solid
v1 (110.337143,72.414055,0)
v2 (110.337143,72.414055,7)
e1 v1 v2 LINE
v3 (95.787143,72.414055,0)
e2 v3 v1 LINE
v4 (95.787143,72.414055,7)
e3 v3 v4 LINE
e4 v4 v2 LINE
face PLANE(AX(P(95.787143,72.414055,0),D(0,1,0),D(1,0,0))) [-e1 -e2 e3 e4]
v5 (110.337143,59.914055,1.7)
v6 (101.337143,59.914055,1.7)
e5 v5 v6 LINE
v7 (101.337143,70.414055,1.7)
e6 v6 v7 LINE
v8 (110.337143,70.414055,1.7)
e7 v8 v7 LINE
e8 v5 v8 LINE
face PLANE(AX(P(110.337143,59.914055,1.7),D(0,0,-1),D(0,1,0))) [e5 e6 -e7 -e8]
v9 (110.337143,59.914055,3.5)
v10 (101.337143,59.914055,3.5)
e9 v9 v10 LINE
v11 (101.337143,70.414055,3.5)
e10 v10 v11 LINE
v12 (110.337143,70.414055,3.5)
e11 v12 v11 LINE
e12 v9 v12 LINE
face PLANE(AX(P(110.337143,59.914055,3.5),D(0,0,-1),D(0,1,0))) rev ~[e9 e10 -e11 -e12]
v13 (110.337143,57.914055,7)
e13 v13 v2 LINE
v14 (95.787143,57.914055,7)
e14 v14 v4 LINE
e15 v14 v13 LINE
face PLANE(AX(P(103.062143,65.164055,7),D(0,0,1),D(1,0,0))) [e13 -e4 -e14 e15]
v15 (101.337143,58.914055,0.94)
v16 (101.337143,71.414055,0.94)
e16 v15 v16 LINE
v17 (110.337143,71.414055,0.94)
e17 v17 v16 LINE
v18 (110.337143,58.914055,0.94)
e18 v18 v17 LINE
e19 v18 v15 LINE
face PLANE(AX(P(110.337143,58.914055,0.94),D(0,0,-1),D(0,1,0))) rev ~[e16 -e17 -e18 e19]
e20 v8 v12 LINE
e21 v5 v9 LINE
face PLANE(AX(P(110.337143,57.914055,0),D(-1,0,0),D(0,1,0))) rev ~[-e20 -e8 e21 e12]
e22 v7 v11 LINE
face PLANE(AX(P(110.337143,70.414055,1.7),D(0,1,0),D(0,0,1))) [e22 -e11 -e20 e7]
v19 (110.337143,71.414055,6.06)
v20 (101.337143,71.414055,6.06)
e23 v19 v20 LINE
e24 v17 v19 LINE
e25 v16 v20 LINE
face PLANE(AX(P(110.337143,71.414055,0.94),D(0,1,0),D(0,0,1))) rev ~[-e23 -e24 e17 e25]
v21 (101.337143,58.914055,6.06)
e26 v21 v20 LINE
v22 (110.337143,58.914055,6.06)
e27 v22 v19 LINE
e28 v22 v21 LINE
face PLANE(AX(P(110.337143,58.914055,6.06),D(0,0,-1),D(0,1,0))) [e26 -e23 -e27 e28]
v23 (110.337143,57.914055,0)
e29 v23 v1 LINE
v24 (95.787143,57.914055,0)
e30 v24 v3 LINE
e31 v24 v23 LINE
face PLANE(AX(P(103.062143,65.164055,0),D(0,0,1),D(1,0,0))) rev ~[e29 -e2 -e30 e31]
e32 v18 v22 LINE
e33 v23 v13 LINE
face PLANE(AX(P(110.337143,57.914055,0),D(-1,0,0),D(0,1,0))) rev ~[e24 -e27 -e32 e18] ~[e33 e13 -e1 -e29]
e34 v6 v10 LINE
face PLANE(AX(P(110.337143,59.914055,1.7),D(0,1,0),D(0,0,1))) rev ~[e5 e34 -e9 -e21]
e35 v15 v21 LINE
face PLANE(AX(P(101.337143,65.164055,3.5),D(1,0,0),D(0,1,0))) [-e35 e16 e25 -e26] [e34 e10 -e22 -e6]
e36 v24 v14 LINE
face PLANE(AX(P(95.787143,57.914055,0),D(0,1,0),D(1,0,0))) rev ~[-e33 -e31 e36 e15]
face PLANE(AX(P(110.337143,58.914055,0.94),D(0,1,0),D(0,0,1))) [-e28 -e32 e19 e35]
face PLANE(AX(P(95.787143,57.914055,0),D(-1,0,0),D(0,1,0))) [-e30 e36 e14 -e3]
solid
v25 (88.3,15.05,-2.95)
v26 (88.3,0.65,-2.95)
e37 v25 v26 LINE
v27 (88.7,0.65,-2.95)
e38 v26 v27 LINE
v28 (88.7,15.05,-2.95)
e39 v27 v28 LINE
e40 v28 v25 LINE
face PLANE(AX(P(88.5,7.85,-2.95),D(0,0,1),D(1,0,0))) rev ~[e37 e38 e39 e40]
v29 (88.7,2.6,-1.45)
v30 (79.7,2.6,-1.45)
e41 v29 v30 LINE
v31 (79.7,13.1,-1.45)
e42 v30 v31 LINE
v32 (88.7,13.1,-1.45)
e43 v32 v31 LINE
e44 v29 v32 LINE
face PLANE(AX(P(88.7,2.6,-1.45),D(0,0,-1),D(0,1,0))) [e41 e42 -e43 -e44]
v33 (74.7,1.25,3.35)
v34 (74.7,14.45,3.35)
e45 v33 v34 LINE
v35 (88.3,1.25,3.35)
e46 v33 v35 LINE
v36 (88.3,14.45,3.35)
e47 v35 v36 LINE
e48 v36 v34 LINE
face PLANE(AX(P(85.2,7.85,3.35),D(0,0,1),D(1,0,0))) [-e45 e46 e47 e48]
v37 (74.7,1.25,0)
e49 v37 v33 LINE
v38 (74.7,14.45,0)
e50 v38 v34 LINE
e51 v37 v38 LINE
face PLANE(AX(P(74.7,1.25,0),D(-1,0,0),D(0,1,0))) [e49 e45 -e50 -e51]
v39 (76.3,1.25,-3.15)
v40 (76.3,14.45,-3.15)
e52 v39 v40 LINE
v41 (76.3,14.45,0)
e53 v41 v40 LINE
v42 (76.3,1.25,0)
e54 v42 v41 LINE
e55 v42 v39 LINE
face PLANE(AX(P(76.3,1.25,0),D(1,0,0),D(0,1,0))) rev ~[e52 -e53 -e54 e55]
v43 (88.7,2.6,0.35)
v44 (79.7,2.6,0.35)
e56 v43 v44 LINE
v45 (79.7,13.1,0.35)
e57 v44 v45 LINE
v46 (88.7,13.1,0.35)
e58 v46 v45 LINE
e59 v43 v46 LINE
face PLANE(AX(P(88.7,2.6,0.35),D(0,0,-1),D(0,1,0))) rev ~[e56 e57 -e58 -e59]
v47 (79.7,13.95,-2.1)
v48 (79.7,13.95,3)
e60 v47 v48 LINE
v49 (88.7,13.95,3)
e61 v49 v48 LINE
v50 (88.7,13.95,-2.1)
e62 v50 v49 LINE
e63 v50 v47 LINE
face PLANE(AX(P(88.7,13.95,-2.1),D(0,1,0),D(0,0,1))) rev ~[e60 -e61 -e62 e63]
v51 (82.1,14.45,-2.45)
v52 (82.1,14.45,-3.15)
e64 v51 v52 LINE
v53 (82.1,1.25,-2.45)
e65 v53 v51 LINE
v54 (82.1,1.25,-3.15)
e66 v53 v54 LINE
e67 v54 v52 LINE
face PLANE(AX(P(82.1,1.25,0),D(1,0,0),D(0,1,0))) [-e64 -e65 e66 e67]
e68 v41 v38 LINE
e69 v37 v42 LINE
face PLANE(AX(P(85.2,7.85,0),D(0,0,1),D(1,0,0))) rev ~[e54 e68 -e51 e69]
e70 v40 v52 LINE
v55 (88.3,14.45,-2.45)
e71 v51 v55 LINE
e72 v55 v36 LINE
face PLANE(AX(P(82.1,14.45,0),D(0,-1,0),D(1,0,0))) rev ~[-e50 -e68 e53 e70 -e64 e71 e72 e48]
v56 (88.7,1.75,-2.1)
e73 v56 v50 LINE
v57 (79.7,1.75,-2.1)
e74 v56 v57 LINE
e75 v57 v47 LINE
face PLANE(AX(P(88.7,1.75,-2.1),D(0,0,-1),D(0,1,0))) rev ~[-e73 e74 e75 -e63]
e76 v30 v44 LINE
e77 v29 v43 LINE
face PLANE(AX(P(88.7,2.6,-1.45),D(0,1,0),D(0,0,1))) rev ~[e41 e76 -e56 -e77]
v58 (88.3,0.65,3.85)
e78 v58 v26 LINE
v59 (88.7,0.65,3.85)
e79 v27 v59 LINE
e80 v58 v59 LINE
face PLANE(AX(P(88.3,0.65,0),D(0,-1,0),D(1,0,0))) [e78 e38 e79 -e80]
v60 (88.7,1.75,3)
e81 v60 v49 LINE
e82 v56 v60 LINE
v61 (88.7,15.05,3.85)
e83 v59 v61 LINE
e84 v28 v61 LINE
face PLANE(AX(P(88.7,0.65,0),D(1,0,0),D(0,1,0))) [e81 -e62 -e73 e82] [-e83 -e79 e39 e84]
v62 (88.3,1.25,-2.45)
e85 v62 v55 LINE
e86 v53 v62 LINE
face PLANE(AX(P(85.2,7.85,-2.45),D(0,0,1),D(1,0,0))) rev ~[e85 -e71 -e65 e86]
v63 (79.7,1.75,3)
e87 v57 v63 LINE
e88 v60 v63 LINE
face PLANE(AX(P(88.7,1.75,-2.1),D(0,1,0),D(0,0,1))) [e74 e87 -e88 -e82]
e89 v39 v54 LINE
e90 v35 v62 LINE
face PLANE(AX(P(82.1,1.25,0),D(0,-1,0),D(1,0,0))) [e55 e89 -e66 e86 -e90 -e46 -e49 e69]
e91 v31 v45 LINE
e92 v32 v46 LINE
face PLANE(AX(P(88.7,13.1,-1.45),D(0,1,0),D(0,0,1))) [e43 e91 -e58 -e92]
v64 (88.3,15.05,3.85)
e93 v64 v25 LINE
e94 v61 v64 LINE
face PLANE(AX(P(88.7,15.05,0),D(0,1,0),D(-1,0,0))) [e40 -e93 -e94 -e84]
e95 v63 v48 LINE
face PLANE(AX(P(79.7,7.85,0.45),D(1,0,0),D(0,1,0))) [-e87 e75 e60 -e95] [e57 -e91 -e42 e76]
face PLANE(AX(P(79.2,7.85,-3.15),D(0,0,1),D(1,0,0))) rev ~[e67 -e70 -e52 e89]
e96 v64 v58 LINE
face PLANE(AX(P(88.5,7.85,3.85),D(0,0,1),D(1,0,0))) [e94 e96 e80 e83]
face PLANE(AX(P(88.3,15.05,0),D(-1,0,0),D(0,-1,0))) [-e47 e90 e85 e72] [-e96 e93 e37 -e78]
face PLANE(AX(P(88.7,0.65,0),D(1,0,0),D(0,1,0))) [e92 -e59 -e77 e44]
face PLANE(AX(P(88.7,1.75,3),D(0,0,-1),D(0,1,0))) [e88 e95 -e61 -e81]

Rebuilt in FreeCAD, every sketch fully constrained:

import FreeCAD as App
import Part
import Sketcher

V = App.Vector

doc = App.newDocument("Part")
body = doc.addObject("PartDesign::Body", "Body")

# Sketch on XY plane
sketch1 = body.newObject("Sketcher::SketchObject", "Sketch")
sketch1.AttachmentSupport = (doc.getObject("XY_Plane"), [""])
sketch1.MapMode = "FlatFace"
sketch1.addGeometry(Part.LineSegment(V(88, 1, 0), V(88, 14, 0)), False)
sketch1.addGeometry(Part.LineSegment(V(88, 14, 0), V(75, 14, 0)), False)
sketch1.addGeometry(Part.LineSegment(V(75, 14, 0), V(75, 1, 0)), False)
sketch1.addGeometry(Part.LineSegment(V(75, 1, 0), V(88, 1, 0)), False)
sketch1.addConstraint(Sketcher.Constraint("Coincident", 0, 2, 1, 1))
sketch1.addConstraint(Sketcher.Constraint("Coincident", 1, 2, 2, 1))
sketch1.addConstraint(Sketcher.Constraint("Coincident", 2, 2, 3, 1))
sketch1.addConstraint(Sketcher.Constraint("Coincident", 3, 2, 0, 1))
sketch1.addConstraint(Sketcher.Constraint("Vertical", 0))
sketch1.addConstraint(Sketcher.Constraint("Horizontal", 1))
sketch1.addConstraint(Sketcher.Constraint("Vertical", 2))
sketch1.addConstraint(Sketcher.Constraint("Horizontal", 3))
sketch1.addConstraint(Sketcher.Constraint("DistanceX", 1, 2, 1, 1, 13.6))
sketch1.addConstraint(Sketcher.Constraint("DistanceY", 0, 1, 0, 2, 13.2))
sketch1.addConstraint(Sketcher.Constraint("DistanceX", -1, 1, 0, 2, 88.3))
sketch1.addConstraint(Sketcher.Constraint("DistanceY", -1, 1, 0, 2, 14.45))
pad1 = body.newObject("PartDesign::Pad", "Pad")
pad1.Profile = sketch1
pad1.Length = 3.35

# Sketch on XY plane
sketch2 = body.newObject("Sketcher::SketchObject", "Sketch001")
sketch2.AttachmentSupport = (doc.getObject("XY_Plane"), [""])
sketch2.MapMode = "FlatFace"
sketch2.addGeometry(Part.LineSegment(V(76, 14, 0), V(76, 1, 0)), False)
sketch2.addGeometry(Part.LineSegment(V(76, 1, 0), V(82, 1, 0)), False)
sketch2.addGeometry(Part.LineSegment(V(82, 1, 0), V(82, 14, 0)), False)
sketch2.addGeometry(Part.LineSegment(V(82, 14, 0), V(76, 14, 0)), False)
sketch2.addConstraint(Sketcher.Constraint("Coincident", 0, 2, 1, 1))
sketch2.addConstraint(Sketcher.Constraint("Coincident", 1, 2, 2, 1))
sketch2.addConstraint(Sketcher.Constraint("Coincident", 2, 2, 3, 1))
sketch2.addConstraint(Sketcher.Constraint("Coincident", 3, 2, 0, 1))
sketch2.addConstraint(Sketcher.Constraint("Vertical", 0))
sketch2.addConstraint(Sketcher.Constraint("Horizontal", 1))
sketch2.addConstraint(Sketcher.Constraint("Vertical", 2))
sketch2.addConstraint(Sketcher.Constraint("Horizontal", 3))
sketch2.addConstraint(Sketcher.Constraint("DistanceX", 1, 1, 1, 2, 5.8))
sketch2.addConstraint(Sketcher.Constraint("DistanceY", 0, 2, 0, 1, 13.2))
sketch2.addConstraint(Sketcher.Constraint("DistanceX", -1, 1, 0, 2, 76.3))
sketch2.addConstraint(Sketcher.Constraint("DistanceY", -1, 1, 0, 2, 1.25))
pad2 = body.newObject("PartDesign::Pad", "Pad001")
pad2.Profile = sketch2
pad2.Length = 3.15
pad2.Reversed = True

# Sketch on XY plane
sketch3 = body.newObject("Sketcher::SketchObject", "Sketch002")
sketch3.AttachmentSupport = (doc.getObject("XY_Plane"), [""])
sketch3.MapMode = "FlatFace"
sketch3.addGeometry(Part.LineSegment(V(82, 14, 0), V(82, 1, 0)), False)
sketch3.addGeometry(Part.LineSegment(V(82, 1, 0), V(88, 1, 0)), False)
sketch3.addGeometry(Part.LineSegment(V(88, 1, 0), V(88, 14, 0)), False)
sketch3.addGeometry(Part.LineSegment(V(88, 14, 0), V(82, 14, 0)), False)
sketch3.addConstraint(Sketcher.Constraint("Coincident", 0, 2, 1, 1))
sketch3.addConstraint(Sketcher.Constraint("Coincident", 1, 2, 2, 1))
sketch3.addConstraint(Sketcher.Constraint("Coincident", 2, 2, 3, 1))
sketch3.addConstraint(Sketcher.Constraint("Coincident", 3, 2, 0, 1))
sketch3.addConstraint(Sketcher.Constraint("Vertical", 0))
sketch3.addConstraint(Sketcher.Constraint("Horizontal", 1))
sketch3.addConstraint(Sketcher.Constraint("Vertical", 2))
sketch3.addConstraint(Sketcher.Constraint("Horizontal", 3))
sketch3.addConstraint(Sketcher.Constraint("DistanceX", 1, 1, 1, 2, 6.2))
sketch3.addConstraint(Sketcher.Constraint("DistanceY", 0, 2, 0, 1, 13.2))
sketch3.addConstraint(Sketcher.Constraint("DistanceX", -1, 1, 0, 2, 82.1))
sketch3.addConstraint(Sketcher.Constraint("DistanceY", -1, 1, 0, 2, 1.25))
pad3 = body.newObject("PartDesign::Pad", "Pad002")
pad3.Profile = sketch3
pad3.Length = 2.45
pad3.Reversed = True

# Sketch on XY plane
sketch4 = body.newObject("Sketcher::SketchObject", "Sketch003")
sketch4.AttachmentSupport = (doc.getObject("XY_Plane"), [""])
sketch4.MapMode = "FlatFace"
sketch4.addGeometry(Part.LineSegment(V(88.3, 0.65, 0), V(88.7, 0.65, 0)), False)
sketch4.addGeometry(Part.LineSegment(V(88.7, 0.65, 0), V(88.7, 15.05, 0)), False)
sketch4.addGeometry(Part.LineSegment(V(88.7, 15.05, 0), V(88.3, 15.05, 0)), False)
sketch4.addGeometry(Part.LineSegment(V(88.3, 15.05, 0), V(88.3, 0.65, 0)), False)
sketch4.addConstraint(Sketcher.Constraint("Coincident", 0, 2, 1, 1))
sketch4.addConstraint(Sketcher.Constraint("Coincident", 1, 2, 2, 1))
sketch4.addConstraint(Sketcher.Constraint("Coincident", 2, 2, 3, 1))
sketch4.addConstraint(Sketcher.Constraint("Coincident", 3, 2, 0, 1))
sketch4.addConstraint(Sketcher.Constraint("Horizontal", 0))
sketch4.addConstraint(Sketcher.Constraint("Vertical", 1))
sketch4.addConstraint(Sketcher.Constraint("Horizontal", 2))
sketch4.addConstraint(Sketcher.Constraint("Vertical", 3))
sketch4.addConstraint(Sketcher.Constraint("DistanceX", 0, 1, 0, 2, 0.4))
sketch4.addConstraint(Sketcher.Constraint("DistanceY", 1, 1, 1, 2, 14.4))
sketch4.addConstraint(Sketcher.Constraint("DistanceX", -1, 1, 0, 2, 88.7))
sketch4.addConstraint(Sketcher.Constraint("DistanceY", -1, 1, 0, 2, 0.65))
pad4 = body.newObject("PartDesign::Pad", "Pad003")
pad4.Profile = sketch4
pad4.Type = "TwoLengths"
pad4.Length = 3.85
pad4.Length2 = 2.95

# Sketch on YZ plane
sketch5 = body.newObject("Sketcher::SketchObject", "Sketch004")
sketch5.AttachmentSupport = (doc.getObject("YZ_Plane"), [""])
sketch5.MapMode = "FlatFace"
sketch5.AttachmentOffset = App.Placement(V(0, 0, 88.7), App.Rotation())
sketch5.addGeometry(Part.LineSegment(V(1.8, 3, 0), V(1.8, -2.1, 0)), False)
sketch5.addGeometry(Part.LineSegment(V(1.8, -2.1, 0), V(13.9, -2.1, 0)), False)
sketch5.addGeometry(Part.LineSegment(V(13.9, -2.1, 0), V(13.9, 3, 0)), False)
sketch5.addGeometry(Part.LineSegment(V(13.9, 3, 0), V(1.8, 3, 0)), False)
sketch5.addGeometry(Part.LineSegment(V(13.1, -1.4, 0), V(2.6, -1.4, 0)), False)
sketch5.addGeometry(Part.LineSegment(V(2.6, -1.4, 0), V(2.6, 0.3, 0)), False)
sketch5.addGeometry(Part.LineSegment(V(2.6, 0.3, 0), V(13.1, 0.3, 0)), False)
sketch5.addGeometry(Part.LineSegment(V(13.1, 0.3, 0), V(13.1, -1.4, 0)), False)
sketch5.addConstraint(Sketcher.Constraint("Coincident", 0, 2, 1, 1))
sketch5.addConstraint(Sketcher.Constraint("Coincident", 1, 2, 2, 1))
sketch5.addConstraint(Sketcher.Constraint("Coincident", 2, 2, 3, 1))
sketch5.addConstraint(Sketcher.Constraint("Coincident", 3, 2, 0, 1))
sketch5.addConstraint(Sketcher.Constraint("Coincident", 4, 2, 5, 1))
sketch5.addConstraint(Sketcher.Constraint("Coincident", 5, 2, 6, 1))
sketch5.addConstraint(Sketcher.Constraint("Coincident", 6, 2, 7, 1))
sketch5.addConstraint(Sketcher.Constraint("Coincident", 7, 2, 4, 1))
sketch5.addConstraint(Sketcher.Constraint("Vertical", 0))
sketch5.addConstraint(Sketcher.Constraint("Horizontal", 1))
sketch5.addConstraint(Sketcher.Constraint("Vertical", 2))
sketch5.addConstraint(Sketcher.Constraint("Horizontal", 3))
sketch5.addConstraint(Sketcher.Constraint("Horizontal", 4))
sketch5.addConstraint(Sketcher.Constraint("Vertical", 5))
sketch5.addConstraint(Sketcher.Constraint("Horizontal", 6))
sketch5.addConstraint(Sketcher.Constraint("Vertical", 7))
sketch5.addConstraint(Sketcher.Constraint("DistanceX", 1, 1, 1, 2, 12.2))
sketch5.addConstraint(Sketcher.Constraint("DistanceX", 4, 2, 4, 1, 10.5))
sketch5.addConstraint(Sketcher.Constraint("DistanceY", 0, 2, 0, 1, 5.1))
sketch5.addConstraint(Sketcher.Constraint("DistanceY", 5, 1, 5, 2, 1.8))
sketch5.addConstraint(Sketcher.Constraint("DistanceY", -1, 1, 2, 2, 3.0))
sketch5.addConstraint(Sketcher.Constraint("DistanceX", -1, 1, 4, 2, 2.6))
sketch5.addConstraint(Sketcher.Constraint("DistanceX", -1, 1, 0, 2, 1.75))
sketch5.addConstraint(Sketcher.Constraint("DistanceY", 4, 2, -1, 1, 1.45))
pocket1 = body.newObject("PartDesign::Pocket", "Pocket")
pocket1.Profile = sketch5
pocket1.Length = 9
body2 = doc.addObject("PartDesign::Body", "Body001")

# Sketch on XY plane
sketch6 = body2.newObject("Sketcher::SketchObject", "Sketch005")
sketch6.AttachmentSupport = (doc.getObject("XY_Plane001"), [""])
sketch6.MapMode = "FlatFace"
sketch6.addGeometry(Part.LineSegment(V(96, 72, 0), V(96, 58, 0)), False)
sketch6.addGeometry(Part.LineSegment(V(96, 58, 0), V(110, 58, 0)), False)
sketch6.addGeometry(Part.LineSegment(V(110, 58, 0), V(110, 72, 0)), False)
sketch6.addGeometry(Part.LineSegment(V(110, 72, 0), V(96, 72, 0)), False)
sketch6.addConstraint(Sketcher.Constraint("Coincident", 0, 2, 1, 1))
sketch6.addConstraint(Sketcher.Constraint("Coincident", 1, 2, 2, 1))
sketch6.addConstraint(Sketcher.Constraint("Coincident", 2, 2, 3, 1))
sketch6.addConstraint(Sketcher.Constraint("Coincident", 3, 2, 0, 1))
sketch6.addConstraint(Sketcher.Constraint("Vertical", 0))
sketch6.addConstraint(Sketcher.Constraint("Horizontal", 1))
sketch6.addConstraint(Sketcher.Constraint("Vertical", 2))
sketch6.addConstraint(Sketcher.Constraint("Horizontal", 3))
sketch6.addConstraint(Sketcher.Constraint("DistanceY", 0, 2, 0, 1, 14.5))
sketch6.addConstraint(Sketcher.Constraint("DistanceX", 1, 1, 1, 2, 14.55))
sketch6.addConstraint(Sketcher.Constraint("DistanceX", -1, 1, 0, 2, 95.787143))
sketch6.addConstraint(Sketcher.Constraint("DistanceY", -1, 1, 0, 2, 57.914055))
pad5 = body2.newObject("PartDesign::Pad", "Pad004")
pad5.Profile = sketch6
pad5.Length = 7

# Sketch on YZ plane
sketch7 = body2.newObject("Sketcher::SketchObject", "Sketch006")
sketch7.AttachmentSupport = (doc.getObject("YZ_Plane001"), [""])
sketch7.MapMode = "FlatFace"
sketch7.AttachmentOffset = App.Placement(V(0, 0, 110.337143), App.Rotation())
sketch7.addGeometry(Part.LineSegment(V(58.9, 6.1, 0), V(58.9, 0.9, 0)), False)
sketch7.addGeometry(Part.LineSegment(V(58.9, 0.9, 0), V(71.4, 0.9, 0)), False)
sketch7.addGeometry(Part.LineSegment(V(71.4, 0.9, 0), V(71.4, 6.1, 0)), False)
sketch7.addGeometry(Part.LineSegment(V(71.4, 6.1, 0), V(58.9, 6.1, 0)), False)
sketch7.addGeometry(Part.LineSegment(V(70.4, 1.7, 0), V(59.9, 1.7, 0)), False)
sketch7.addGeometry(Part.LineSegment(V(59.9, 1.7, 0), V(59.9, 3.5, 0)), False)
sketch7.addGeometry(Part.LineSegment(V(59.9, 3.5, 0), V(70.4, 3.5, 0)), False)
sketch7.addGeometry(Part.LineSegment(V(70.4, 3.5, 0), V(70.4, 1.7, 0)), False)
sketch7.addConstraint(Sketcher.Constraint("Coincident", 0, 2, 1, 1))
sketch7.addConstraint(Sketcher.Constraint("Coincident", 1, 2, 2, 1))
sketch7.addConstraint(Sketcher.Constraint("Coincident", 2, 2, 3, 1))
sketch7.addConstraint(Sketcher.Constraint("Coincident", 3, 2, 0, 1))
sketch7.addConstraint(Sketcher.Constraint("Coincident", 4, 2, 5, 1))
sketch7.addConstraint(Sketcher.Constraint("Coincident", 5, 2, 6, 1))
sketch7.addConstraint(Sketcher.Constraint("Coincident", 6, 2, 7, 1))
sketch7.addConstraint(Sketcher.Constraint("Coincident", 7, 2, 4, 1))
sketch7.addConstraint(Sketcher.Constraint("Vertical", 0))
sketch7.addConstraint(Sketcher.Constraint("Horizontal", 1))
sketch7.addConstraint(Sketcher.Constraint("Vertical", 2))
sketch7.addConstraint(Sketcher.Constraint("Horizontal", 3))
sketch7.addConstraint(Sketcher.Constraint("Horizontal", 4))
sketch7.addConstraint(Sketcher.Constraint("Vertical", 5))
sketch7.addConstraint(Sketcher.Constraint("Horizontal", 6))
sketch7.addConstraint(Sketcher.Constraint("Vertical", 7))
sketch7.addConstraint(Sketcher.Constraint("DistanceX", 1, 1, 1, 2, 12.5))
sketch7.addConstraint(Sketcher.Constraint("DistanceX", 4, 2, 4, 1, 10.5))
sketch7.addConstraint(Sketcher.Constraint("DistanceY", 5, 1, 5, 2, 1.8))
sketch7.addConstraint(Sketcher.Constraint("DistanceX", 0, 2, 4, 2, 1.0))
sketch7.addConstraint(Sketcher.Constraint("DistanceY", 0, 2, 0, 1, 5.12))
sketch7.addConstraint(Sketcher.Constraint("DistanceY", -1, 1, 4, 2, 1.7))
sketch7.addConstraint(Sketcher.Constraint("DistanceY", -1, 1, 0, 2, 0.94))
sketch7.addConstraint(Sketcher.Constraint("DistanceX", -1, 1, 0, 2, 58.914055))
pocket2 = body2.newObject("PartDesign::Pocket", "Pocket001")
pocket2.Profile = sketch7
pocket2.Length = 9

doc.recompute()
